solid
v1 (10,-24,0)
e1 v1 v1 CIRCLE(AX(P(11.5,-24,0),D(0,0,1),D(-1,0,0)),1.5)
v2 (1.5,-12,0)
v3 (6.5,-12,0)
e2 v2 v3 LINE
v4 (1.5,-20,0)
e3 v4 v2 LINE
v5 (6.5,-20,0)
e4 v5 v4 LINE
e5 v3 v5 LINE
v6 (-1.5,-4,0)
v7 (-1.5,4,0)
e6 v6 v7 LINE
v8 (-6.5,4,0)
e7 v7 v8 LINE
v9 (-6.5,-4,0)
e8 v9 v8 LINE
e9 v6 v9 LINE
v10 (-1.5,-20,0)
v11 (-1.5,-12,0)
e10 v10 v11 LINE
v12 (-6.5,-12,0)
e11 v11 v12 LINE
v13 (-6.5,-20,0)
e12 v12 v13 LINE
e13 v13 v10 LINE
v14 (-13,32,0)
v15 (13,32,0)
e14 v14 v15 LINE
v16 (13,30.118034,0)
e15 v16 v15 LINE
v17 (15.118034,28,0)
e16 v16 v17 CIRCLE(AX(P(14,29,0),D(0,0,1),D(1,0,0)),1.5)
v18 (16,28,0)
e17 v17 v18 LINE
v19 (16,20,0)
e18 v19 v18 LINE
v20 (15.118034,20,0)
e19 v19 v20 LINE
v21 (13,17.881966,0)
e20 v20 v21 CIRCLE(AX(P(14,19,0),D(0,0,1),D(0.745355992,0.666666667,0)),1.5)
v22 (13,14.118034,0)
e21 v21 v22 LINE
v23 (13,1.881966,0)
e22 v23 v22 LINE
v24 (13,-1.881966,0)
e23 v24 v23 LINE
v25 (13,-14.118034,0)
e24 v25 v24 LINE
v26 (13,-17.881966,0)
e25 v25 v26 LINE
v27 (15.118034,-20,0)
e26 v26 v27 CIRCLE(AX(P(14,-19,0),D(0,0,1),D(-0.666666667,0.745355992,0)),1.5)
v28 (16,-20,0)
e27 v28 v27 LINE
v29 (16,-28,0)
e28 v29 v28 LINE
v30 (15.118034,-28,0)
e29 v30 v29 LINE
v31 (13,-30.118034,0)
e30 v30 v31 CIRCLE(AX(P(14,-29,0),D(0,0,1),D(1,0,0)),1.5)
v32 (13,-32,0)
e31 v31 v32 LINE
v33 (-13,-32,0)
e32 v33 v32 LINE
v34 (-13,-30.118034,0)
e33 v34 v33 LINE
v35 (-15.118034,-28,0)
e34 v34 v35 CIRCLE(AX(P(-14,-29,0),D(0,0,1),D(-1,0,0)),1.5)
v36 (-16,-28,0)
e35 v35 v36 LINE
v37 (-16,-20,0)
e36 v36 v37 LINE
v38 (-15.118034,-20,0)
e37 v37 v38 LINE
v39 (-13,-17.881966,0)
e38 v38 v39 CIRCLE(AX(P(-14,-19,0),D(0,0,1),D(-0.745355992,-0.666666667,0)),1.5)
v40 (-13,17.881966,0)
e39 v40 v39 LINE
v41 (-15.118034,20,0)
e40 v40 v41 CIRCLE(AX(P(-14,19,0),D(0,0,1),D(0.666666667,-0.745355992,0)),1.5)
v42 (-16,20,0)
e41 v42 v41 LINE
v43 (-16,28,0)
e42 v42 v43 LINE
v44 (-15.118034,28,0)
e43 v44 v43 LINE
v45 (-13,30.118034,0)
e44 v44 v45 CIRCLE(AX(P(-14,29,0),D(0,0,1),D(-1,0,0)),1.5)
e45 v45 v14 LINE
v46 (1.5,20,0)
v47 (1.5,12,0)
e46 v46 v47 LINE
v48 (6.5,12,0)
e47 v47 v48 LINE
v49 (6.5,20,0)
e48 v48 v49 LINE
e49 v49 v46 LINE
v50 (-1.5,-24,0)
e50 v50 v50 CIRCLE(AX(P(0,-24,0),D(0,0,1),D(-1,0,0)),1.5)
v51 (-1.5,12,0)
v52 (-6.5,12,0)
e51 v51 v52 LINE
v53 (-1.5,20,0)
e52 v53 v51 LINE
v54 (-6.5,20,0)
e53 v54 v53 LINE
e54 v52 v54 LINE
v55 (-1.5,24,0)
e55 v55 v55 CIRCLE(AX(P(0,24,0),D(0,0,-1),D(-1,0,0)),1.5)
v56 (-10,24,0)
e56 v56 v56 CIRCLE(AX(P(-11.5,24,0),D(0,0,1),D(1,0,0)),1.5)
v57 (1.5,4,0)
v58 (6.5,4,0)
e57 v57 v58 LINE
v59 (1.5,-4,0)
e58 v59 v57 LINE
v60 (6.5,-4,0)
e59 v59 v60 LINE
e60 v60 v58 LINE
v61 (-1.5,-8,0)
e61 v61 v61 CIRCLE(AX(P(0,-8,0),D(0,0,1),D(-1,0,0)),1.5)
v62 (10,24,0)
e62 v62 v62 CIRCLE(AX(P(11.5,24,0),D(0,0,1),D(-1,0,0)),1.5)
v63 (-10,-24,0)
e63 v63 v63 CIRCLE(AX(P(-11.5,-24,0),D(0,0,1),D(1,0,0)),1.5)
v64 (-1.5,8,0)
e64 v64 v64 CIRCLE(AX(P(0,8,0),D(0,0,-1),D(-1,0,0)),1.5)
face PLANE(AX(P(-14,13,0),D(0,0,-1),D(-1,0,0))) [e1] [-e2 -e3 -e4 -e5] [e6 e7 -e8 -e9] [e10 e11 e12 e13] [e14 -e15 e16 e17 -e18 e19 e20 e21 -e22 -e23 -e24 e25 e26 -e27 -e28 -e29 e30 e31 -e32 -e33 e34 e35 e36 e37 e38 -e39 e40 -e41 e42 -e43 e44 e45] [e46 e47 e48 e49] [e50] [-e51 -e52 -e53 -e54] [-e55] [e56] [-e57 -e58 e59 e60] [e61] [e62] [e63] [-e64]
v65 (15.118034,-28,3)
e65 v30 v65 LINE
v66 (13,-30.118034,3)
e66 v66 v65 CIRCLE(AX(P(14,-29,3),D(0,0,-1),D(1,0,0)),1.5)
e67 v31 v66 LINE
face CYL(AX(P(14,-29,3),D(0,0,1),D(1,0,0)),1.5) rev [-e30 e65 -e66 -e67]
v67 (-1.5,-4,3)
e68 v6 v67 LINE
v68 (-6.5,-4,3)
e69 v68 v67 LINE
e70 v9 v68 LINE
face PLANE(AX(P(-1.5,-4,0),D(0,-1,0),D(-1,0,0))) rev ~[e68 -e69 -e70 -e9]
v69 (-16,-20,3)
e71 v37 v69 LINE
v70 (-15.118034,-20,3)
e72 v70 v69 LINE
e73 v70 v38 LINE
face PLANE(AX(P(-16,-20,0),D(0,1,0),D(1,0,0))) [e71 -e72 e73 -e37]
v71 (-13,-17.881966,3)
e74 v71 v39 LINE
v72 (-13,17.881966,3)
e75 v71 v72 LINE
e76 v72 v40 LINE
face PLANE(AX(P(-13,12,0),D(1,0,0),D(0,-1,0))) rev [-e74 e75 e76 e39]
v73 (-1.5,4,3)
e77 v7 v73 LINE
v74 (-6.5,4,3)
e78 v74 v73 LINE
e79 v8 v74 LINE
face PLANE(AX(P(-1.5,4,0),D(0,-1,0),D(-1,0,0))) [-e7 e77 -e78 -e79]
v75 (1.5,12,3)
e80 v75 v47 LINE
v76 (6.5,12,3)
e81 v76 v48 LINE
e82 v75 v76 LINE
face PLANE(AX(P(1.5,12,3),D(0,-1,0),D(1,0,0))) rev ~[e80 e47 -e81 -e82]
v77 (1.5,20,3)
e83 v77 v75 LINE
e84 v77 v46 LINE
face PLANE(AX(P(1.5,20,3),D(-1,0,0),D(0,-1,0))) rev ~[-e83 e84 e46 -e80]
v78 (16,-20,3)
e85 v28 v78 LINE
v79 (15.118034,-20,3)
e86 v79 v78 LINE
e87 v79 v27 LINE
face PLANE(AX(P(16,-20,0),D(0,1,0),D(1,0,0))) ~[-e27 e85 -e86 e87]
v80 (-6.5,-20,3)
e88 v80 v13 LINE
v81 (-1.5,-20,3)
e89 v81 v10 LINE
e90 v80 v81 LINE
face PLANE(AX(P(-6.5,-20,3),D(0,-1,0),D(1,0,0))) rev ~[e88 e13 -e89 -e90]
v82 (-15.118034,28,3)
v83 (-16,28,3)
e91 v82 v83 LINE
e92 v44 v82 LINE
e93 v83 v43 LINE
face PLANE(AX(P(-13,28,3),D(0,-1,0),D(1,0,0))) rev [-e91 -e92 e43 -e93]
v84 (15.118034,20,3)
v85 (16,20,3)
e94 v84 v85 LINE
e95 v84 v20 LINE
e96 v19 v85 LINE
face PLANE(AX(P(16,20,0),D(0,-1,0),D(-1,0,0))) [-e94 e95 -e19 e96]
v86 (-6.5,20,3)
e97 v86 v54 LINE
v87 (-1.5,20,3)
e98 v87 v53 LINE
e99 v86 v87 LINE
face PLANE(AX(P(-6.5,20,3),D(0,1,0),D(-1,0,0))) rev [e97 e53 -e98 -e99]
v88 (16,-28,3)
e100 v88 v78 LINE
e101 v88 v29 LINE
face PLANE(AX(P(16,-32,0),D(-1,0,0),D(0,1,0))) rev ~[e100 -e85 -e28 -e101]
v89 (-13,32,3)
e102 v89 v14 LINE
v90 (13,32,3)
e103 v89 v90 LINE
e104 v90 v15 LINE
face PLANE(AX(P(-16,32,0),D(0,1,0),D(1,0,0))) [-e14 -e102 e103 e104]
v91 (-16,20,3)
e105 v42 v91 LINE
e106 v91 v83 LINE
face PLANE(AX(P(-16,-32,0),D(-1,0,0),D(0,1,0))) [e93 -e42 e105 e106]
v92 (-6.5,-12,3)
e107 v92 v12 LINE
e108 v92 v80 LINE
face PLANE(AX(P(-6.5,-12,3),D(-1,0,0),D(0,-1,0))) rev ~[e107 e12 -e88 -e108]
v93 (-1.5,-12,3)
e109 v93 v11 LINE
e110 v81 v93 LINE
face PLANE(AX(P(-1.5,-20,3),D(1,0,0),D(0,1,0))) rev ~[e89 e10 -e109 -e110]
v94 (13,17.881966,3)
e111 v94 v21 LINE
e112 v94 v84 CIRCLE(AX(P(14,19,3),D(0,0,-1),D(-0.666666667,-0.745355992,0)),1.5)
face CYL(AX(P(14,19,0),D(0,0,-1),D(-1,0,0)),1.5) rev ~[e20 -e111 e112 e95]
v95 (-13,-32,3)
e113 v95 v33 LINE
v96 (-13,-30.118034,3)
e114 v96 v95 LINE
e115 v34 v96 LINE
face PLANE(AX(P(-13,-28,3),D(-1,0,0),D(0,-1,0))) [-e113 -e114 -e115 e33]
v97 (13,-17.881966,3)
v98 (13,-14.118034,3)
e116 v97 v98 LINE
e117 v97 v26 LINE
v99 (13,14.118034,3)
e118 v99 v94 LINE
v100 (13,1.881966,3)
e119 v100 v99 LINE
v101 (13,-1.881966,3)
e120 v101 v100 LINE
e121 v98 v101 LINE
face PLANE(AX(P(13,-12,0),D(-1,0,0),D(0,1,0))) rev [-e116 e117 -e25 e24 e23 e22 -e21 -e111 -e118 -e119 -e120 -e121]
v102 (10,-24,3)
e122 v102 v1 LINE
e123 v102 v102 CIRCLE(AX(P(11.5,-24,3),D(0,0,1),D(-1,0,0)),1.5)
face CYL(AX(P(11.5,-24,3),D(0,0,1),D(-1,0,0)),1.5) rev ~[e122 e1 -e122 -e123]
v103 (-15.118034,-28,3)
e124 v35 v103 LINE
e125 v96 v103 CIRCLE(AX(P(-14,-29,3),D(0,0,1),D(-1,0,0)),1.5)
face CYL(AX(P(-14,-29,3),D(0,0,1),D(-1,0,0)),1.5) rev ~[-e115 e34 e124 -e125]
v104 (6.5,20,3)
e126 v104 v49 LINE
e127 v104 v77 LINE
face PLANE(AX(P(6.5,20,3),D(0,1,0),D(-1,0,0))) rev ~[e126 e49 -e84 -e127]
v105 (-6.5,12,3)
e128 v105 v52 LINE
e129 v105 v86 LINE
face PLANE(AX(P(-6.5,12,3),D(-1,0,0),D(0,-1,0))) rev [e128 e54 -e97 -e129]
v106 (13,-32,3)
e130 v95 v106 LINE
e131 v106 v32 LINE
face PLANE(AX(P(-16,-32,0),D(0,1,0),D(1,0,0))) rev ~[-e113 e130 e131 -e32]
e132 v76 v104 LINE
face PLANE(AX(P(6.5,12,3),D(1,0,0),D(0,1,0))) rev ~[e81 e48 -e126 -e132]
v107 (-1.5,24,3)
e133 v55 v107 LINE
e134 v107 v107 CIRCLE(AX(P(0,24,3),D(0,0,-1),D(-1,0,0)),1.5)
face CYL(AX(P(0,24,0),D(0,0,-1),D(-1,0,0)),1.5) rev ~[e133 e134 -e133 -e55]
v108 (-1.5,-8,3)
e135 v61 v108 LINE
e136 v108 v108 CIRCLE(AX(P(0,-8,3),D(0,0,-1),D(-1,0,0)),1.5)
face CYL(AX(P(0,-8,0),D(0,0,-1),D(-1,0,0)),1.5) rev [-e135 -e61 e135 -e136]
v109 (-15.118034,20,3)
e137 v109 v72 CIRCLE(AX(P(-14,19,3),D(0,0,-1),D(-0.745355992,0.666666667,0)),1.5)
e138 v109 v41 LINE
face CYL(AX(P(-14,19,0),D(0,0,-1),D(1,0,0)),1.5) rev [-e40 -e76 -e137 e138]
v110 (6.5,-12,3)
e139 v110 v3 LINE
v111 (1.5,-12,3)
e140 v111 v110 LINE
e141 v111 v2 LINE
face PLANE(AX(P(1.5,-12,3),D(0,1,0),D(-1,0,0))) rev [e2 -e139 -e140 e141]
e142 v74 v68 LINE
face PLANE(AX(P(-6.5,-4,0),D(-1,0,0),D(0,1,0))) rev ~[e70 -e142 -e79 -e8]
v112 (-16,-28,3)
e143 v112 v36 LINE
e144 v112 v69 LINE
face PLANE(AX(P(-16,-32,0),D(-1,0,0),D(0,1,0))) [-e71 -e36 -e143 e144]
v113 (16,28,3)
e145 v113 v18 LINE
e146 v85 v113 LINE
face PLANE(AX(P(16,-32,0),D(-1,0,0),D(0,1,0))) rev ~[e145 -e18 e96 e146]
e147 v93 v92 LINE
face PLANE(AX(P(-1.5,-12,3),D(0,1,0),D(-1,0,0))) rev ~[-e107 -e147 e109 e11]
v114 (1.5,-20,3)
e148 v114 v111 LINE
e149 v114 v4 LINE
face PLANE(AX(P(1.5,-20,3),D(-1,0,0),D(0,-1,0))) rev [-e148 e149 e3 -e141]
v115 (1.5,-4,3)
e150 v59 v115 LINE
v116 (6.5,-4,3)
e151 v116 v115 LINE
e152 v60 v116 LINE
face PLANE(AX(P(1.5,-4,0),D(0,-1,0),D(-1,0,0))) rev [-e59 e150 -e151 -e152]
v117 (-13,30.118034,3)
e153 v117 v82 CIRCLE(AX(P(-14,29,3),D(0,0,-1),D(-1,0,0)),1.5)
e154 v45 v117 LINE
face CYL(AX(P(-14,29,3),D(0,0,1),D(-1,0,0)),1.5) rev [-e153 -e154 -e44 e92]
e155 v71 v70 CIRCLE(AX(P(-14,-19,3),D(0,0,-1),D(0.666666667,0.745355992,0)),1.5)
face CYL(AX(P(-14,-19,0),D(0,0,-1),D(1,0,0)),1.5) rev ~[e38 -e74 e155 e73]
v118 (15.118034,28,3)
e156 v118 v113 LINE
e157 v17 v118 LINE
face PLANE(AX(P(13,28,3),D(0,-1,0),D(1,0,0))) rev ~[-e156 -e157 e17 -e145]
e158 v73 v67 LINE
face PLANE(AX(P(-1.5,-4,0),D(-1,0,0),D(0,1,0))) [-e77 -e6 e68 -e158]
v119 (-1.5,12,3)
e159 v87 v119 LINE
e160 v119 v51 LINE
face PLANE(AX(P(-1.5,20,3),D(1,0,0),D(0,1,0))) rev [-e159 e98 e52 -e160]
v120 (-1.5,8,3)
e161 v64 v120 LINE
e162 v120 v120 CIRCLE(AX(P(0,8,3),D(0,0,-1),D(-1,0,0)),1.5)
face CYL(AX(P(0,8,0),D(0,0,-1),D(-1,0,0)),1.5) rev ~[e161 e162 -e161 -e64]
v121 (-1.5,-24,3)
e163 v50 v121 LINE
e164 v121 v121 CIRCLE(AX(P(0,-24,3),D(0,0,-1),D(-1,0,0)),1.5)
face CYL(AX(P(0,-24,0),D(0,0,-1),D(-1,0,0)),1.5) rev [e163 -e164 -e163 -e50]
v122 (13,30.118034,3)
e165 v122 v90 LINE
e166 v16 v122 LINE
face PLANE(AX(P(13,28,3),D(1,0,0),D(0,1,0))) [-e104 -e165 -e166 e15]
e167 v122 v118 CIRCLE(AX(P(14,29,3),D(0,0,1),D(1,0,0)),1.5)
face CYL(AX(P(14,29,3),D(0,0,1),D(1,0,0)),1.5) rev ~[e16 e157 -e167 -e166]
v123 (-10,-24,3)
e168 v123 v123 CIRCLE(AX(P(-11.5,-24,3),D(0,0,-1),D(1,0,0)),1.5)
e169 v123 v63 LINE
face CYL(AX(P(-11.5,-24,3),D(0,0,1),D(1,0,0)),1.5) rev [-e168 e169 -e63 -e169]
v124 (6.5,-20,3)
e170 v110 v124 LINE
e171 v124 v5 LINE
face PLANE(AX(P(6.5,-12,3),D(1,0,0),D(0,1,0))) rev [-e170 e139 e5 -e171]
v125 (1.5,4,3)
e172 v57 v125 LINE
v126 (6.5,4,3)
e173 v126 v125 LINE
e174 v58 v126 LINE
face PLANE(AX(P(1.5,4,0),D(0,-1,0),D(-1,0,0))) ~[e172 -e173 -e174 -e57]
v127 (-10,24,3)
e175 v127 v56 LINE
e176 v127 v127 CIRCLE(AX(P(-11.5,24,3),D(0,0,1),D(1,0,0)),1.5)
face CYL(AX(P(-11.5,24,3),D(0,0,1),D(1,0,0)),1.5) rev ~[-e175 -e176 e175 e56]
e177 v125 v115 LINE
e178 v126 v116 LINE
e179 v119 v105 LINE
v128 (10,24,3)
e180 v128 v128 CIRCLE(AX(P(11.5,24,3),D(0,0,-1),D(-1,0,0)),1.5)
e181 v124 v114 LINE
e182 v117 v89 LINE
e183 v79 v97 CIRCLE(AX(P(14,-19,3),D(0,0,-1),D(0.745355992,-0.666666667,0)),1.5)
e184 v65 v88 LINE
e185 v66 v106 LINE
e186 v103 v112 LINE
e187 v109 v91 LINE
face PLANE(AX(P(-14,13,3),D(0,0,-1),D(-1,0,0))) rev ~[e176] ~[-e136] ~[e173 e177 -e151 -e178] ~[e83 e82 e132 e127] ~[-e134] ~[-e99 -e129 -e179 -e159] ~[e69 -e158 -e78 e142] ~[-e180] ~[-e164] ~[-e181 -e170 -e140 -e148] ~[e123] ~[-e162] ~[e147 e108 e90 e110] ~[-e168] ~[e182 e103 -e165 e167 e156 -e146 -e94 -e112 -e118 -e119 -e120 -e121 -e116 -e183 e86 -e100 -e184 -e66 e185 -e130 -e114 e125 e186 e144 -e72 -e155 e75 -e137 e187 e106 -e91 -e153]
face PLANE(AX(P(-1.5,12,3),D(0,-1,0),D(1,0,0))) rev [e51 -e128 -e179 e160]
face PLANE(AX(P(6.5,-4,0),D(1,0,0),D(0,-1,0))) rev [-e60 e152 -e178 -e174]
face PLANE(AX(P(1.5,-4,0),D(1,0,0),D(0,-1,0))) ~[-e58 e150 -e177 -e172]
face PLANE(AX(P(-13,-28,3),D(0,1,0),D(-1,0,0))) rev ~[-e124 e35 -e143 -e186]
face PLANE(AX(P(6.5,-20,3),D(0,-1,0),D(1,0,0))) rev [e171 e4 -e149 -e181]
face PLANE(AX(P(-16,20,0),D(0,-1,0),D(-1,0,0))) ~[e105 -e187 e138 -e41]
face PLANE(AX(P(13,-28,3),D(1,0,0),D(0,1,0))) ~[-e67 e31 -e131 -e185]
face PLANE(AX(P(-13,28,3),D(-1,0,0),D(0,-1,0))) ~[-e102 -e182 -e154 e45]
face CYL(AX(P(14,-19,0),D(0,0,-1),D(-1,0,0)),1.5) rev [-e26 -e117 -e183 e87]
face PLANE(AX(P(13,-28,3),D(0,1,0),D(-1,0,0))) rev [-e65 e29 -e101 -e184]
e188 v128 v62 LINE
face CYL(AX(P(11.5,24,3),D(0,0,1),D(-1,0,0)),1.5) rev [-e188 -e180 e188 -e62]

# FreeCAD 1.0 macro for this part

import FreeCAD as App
import Part
import Sketcher
from FreeCAD import Vector


def add_polygon(sketch, points):
    """Adds a closed chain of lines whose ends are joined by coincident constraints."""
    first, n = sketch.GeometryCount, len(points)
    for a, b in zip(points, points[1:] + points[:1]):
        sketch.addGeometry(Part.LineSegment(App.Vector(*a, 0), App.Vector(*b, 0)), False)
    for i in range(n):
        sketch.addConstraint(Sketcher.Constraint("Coincident", first + i, 2, first + (i + 1) % n, 1))

doc = App.newDocument("Part")
body = doc.addObject("PartDesign::Body", "Body")

# Sketch on XY plane
sketch1 = body.newObject("Sketcher::SketchObject", "Sketch")
sketch1.AttachmentSupport = (doc.getObject("XY_Plane"), [""])
sketch1.MapMode = "FlatFace"
add_polygon(sketch1, [(-16, 32), (-16, -32), (16, -32), (16, 32)])  # lines 0-3
sketch1.addConstraint([
    Sketcher.Constraint("Vertical", 0),
    Sketcher.Constraint("Horizontal", 1),
    Sketcher.Constraint("Vertical", 2),
    Sketcher.Constraint("Horizontal", 3),
    Sketcher.Constraint("Symmetric", 0, 2, 2, 2, -1, 1),
    Sketcher.Constraint("DistanceX", 1, 1, 1, 2, 32.0),
    Sketcher.Constraint("DistanceY", 0, 2, 0, 1, 64.0),
])
pad1 = body.newObject("PartDesign::Pad", "Pad")
pad1.Profile = sketch1
pad1.Length = 3

# Sketch on XY plane
sketch2 = body.newObject("Sketcher::SketchObject", "Sketch001")
sketch2.AttachmentSupport = (doc.getObject("XY_Plane"), [""])
sketch2.MapMode = "FlatFace"
sketch2.AttachmentOffset = App.Placement(Vector(0, 0, 3), App.Rotation())
add_polygon(sketch2, [(6, 12), (6, 20), (2, 20), (2, 12)])  # lines 0-3
sketch2.addConstraint([
    Sketcher.Constraint("Vertical", 0),
    Sketcher.Constraint("Horizontal", 1),
    Sketcher.Constraint("Vertical", 2),
    Sketcher.Constraint("Horizontal", 3),
    Sketcher.Constraint("DistanceX", 1, 2, 1, 1, 5.0),
    Sketcher.Constraint("DistanceY", 0, 1, 0, 2, 8.0),
    Sketcher.Constraint("DistanceY", -1, 1, 0, 2, 20.0),
    Sketcher.Constraint("DistanceX", -1, 1, 0, 2, 6.5),
])
pocket1 = body.newObject("PartDesign::Pocket", "Pocket")
pocket1.Profile = sketch2
pocket1.Type = "ThroughAll"
doc.recompute()

mirrored = body.newObject("PartDesign::Mirrored", "Mirrored")
mirrored.Originals = [pocket1]
mirrored.MirrorPlane = (doc.getObject("YZ_Plane"), [""])
body.Tip = mirrored
doc.recompute()

mirrored2 = body.newObject("PartDesign::Mirrored", "Mirrored001")
mirrored2.Originals = [pocket1]
mirrored2.MirrorPlane = (doc.getObject("XZ_Plane"), [""])
body.Tip = mirrored2

# Sketch on XY plane
sketch3 = body.newObject("Sketcher::SketchObject", "Sketch002")
sketch3.AttachmentSupport = (doc.getObject("XY_Plane"), [""])
sketch3.MapMode = "FlatFace"
sketch3.AttachmentOffset = App.Placement(Vector(0, 0, 3), App.Rotation())
add_polygon(sketch3, [(-6, -12), (-6, -20), (-2, -20), (-2, -12)])  # lines 0-3
sketch3.addConstraint([
    Sketcher.Constraint("Vertical", 0),
    Sketcher.Constraint("Horizontal", 1),
    Sketcher.Constraint("Vertical", 2),
    Sketcher.Constraint("Horizontal", 3),
    Sketcher.Constraint("DistanceX", 1, 1, 1, 2, 5.0),
    Sketcher.Constraint("DistanceY", 0, 2, 0, 1, 8.0),
    Sketcher.Constraint("DistanceY", 0, 2, -1, 1, 20.0),
    Sketcher.Constraint("DistanceX", 0, 2, -1, 1, 6.5),
])
pocket2 = body.newObject("PartDesign::Pocket", "Pocket001")
pocket2.Profile = sketch3
pocket2.Type = "ThroughAll"

# Sketch on XY plane
sketch4 = body.newObject("Sketcher::SketchObject", "Sketch003")
sketch4.AttachmentSupport = (doc.getObject("XY_Plane"), [""])
sketch4.MapMode = "FlatFace"
sketch4.AttachmentOffset = App.Placement(Vector(0, 0, 3), App.Rotation())
add_polygon(sketch4, [(13, 4), (13, -4), (16, -4), (16, 4)])  # lines 0-3
sketch4.addConstraint([
    Sketcher.Constraint("Vertical", 0),
    Sketcher.Constraint("Horizontal", 1),
    Sketcher.Constraint("Vertical", 2),
    Sketcher.Constraint("Horizontal", 3),
    Sketcher.Constraint("DistanceX", 1, 1, 1, 2, 3.0),
    Sketcher.Constraint("DistanceY", 0, 2, 0, 1, 8.0),
    Sketcher.Constraint("DistanceX", -1, 1, 0, 2, 13.0),
    Sketcher.Constraint("DistanceY", 0, 2, -1, 1, 4.0),
])
pocket3 = body.newObject("PartDesign::Pocket", "Pocket002")
pocket3.Profile = sketch4
pocket3.Length = 10
doc.recompute()

mirrored3 = body.newObject("PartDesign::Mirrored", "Mirrored002")
mirrored3.Originals = [pocket3]
mirrored3.MirrorPlane = (doc.getObject("YZ_Plane"), [""])
body.Tip = mirrored3

# Sketch on XY plane
sketch5 = body.newObject("Sketcher::SketchObject", "Sketch004")
sketch5.AttachmentSupport = (doc.getObject("XY_Plane"), [""])
sketch5.MapMode = "FlatFace"
sketch5.AttachmentOffset = App.Placement(Vector(0, 0, 3), App.Rotation())
add_polygon(sketch5, [(13, 32), (13, 28), (16, 28), (16, 32)])  # lines 0-3
sketch5.addConstraint([
    Sketcher.Constraint("Vertical", 0),
    Sketcher.Constraint("Horizontal", 1),
    Sketcher.Constraint("Vertical", 2),
    Sketcher.Constraint("Horizontal", 3),
    Sketcher.Constraint("DistanceX", 1, 1, 1, 2, 3.0),
    Sketcher.Constraint("DistanceY", 0, 2, 0, 1, 4.0),
    Sketcher.Constraint("DistanceX", -1, 1, 0, 2, 13.0),
    Sketcher.Constraint("DistanceY", -1, 1, 0, 2, 28.0),
])
pocket4 = body.newObject("PartDesign::Pocket", "Pocket003")
pocket4.Profile = sketch5
pocket4.Type = "ThroughAll"
doc.recompute()

mirrored4 = body.newObject("PartDesign::Mirrored", "Mirrored003")
mirrored4.Originals = [pocket4]
mirrored4.MirrorPlane = (doc.getObject("XZ_Plane"), [""])
body.Tip = mirrored4
doc.recompute()

mirrored5 = body.newObject("PartDesign::Mirrored", "Mirrored004")
mirrored5.Originals = [pocket4]
mirrored5.MirrorPlane = (doc.getObject("YZ_Plane"), [""])
body.Tip = mirrored5

# Sketch on XY plane
sketch6 = body.newObject("Sketcher::SketchObject", "Sketch005")
sketch6.AttachmentSupport = (doc.getObject("XY_Plane"), [""])
sketch6.MapMode = "FlatFace"
sketch6.AttachmentOffset = App.Placement(Vector(0, 0, 3), App.Rotation())
add_polygon(sketch6, [(-13, -32), (-13, -28), (-16, -28), (-16, -32)])  # lines 0-3
sketch6.addConstraint([
    Sketcher.Constraint("Vertical", 0),
    Sketcher.Constraint("Horizontal", 1),
    Sketcher.Constraint("Vertical", 2),
    Sketcher.Constraint("Horizontal", 3),
    Sketcher.Constraint("DistanceX", 1, 2, 1, 1, 3.0),
    Sketcher.Constraint("DistanceY", 0, 1, 0, 2, 4.0),
    Sketcher.Constraint("DistanceX", 0, 2, -1, 1, 13.0),
    Sketcher.Constraint("DistanceY", 0, 2, -1, 1, 28.0),
])
pocket5 = body.newObject("PartDesign::Pocket", "Pocket004")
pocket5.Profile = sketch6
pocket5.Type = "ThroughAll"

# Sketch on XY plane
sketch7 = body.newObject("Sketcher::SketchObject", "Sketch006")
sketch7.AttachmentSupport = (doc.getObject("XY_Plane"), [""])
sketch7.MapMode = "FlatFace"
sketch7.AttachmentOffset = App.Placement(Vector(0, 0, 3), App.Rotation())
sketch7.addGeometry(Part.Circle(Vector(14, 29, 0), Vector(0, 0, 1), 1.5), False)
sketch7.addConstraint([
    Sketcher.Constraint("Diameter", 0, 3.0),
    Sketcher.Constraint("DistanceX", -1, 1, 0, 3, 14.0),
    Sketcher.Constraint("DistanceY", -1, 1, 0, 3, 29.0),
])
pocket6 = body.newObject("PartDesign::Pocket", "Pocket005")
pocket6.Profile = sketch7
pocket6.Type = "ThroughAll"
doc.recompute()

mirrored6 = body.newObject("PartDesign::Mirrored", "Mirrored005")
mirrored6.Originals = [pocket6]
mirrored6.MirrorPlane = (doc.getObject("YZ_Plane"), [""])
body.Tip = mirrored6
doc.recompute()

mirrored7 = body.newObject("PartDesign::Mirrored", "Mirrored006")
mirrored7.Originals = [pocket6]
mirrored7.MirrorPlane = (doc.getObject("XZ_Plane"), [""])
body.Tip = mirrored7

# Sketch on XY plane
sketch8 = body.newObject("Sketcher::SketchObject", "Sketch007")
sketch8.AttachmentSupport = (doc.getObject("XY_Plane"), [""])
sketch8.MapMode = "FlatFace"
sketch8.AttachmentOffset = App.Placement(Vector(0, 0, 3), App.Rotation())
sketch8.addGeometry(Part.Circle(Vector(-14, -29, 0), Vector(0, 0, 1), 1.5), False)
sketch8.addConstraint([
    Sketcher.Constraint("Diameter", 0, 3.0),
    Sketcher.Constraint("DistanceX", 0, 3, -1, 1, 14.0),
    Sketcher.Constraint("DistanceY", 0, 3, -1, 1, 29.0),
])
pocket7 = body.newObject("PartDesign::Pocket", "Pocket006")
pocket7.Profile = sketch8
pocket7.Type = "ThroughAll"

# Sketch on XY plane
sketch9 = body.newObject("Sketcher::SketchObject", "Sketch008")
sketch9.AttachmentSupport = (doc.getObject("XY_Plane"), [""])
sketch9.MapMode = "FlatFace"
sketch9.AttachmentOffset = App.Placement(Vector(0, 0, 3), App.Rotation())
sketch9.addGeometry(Part.Circle(Vector(-14, 3, 0), Vector(0, 0, 1), 1.5), False)
sketch9.addConstraint([
    Sketcher.Constraint("Diameter", 0, 3.0),
    Sketcher.Constraint("DistanceX", 0, 3, -1, 1, 14.0),
    Sketcher.Constraint("DistanceY", -1, 1, 0, 3, 3.0),
])
pocket8 = body.newObject("PartDesign::Pocket", "Pocket007")
pocket8.Profile = sketch9
pocket8.Type = "ThroughAll"
doc.recompute()

mirrored8 = body.newObject("PartDesign::Mirrored", "Mirrored007")
mirrored8.Originals = [pocket8]
mirrored8.MirrorPlane = (doc.getObject("XZ_Plane"), [""])
body.Tip = mirrored8
doc.recompute()

mirrored9 = body.newObject("PartDesign::Mirrored", "Mirrored008")
mirrored9.Originals = [pocket8]
mirrored9.MirrorPlane = (doc.getObject("YZ_Plane"), [""])
body.Tip = mirrored9

# Sketch on XY plane
sketch10 = body.newObject("Sketcher::SketchObject", "Sketch009")
sketch10.AttachmentSupport = (doc.getObject("XY_Plane"), [""])
sketch10.MapMode = "FlatFace"
sketch10.AttachmentOffset = App.Placement(Vector(0, 0, 3), App.Rotation())
sketch10.addGeometry(Part.Circle(Vector(14, -3, 0), Vector(0, 0, 1), 1.5), False)
sketch10.addConstraint([
    Sketcher.Constraint("Diameter", 0, 3.0),
    Sketcher.Constraint("DistanceX", -1, 1, 0, 3, 14.0),
    Sketcher.Constraint("DistanceY", 0, 3, -1, 1, 3.0),
])
pocket9 = body.newObject("PartDesign::Pocket", "Pocket008")
pocket9.Profile = sketch10
pocket9.Type = "ThroughAll"

# Sketch on XY plane
sketch11 = body.newObject("Sketcher::SketchObject", "Sketch010")
sketch11.AttachmentSupport = (doc.getObject("XY_Plane"), [""])
sketch11.MapMode = "FlatFace"
sketch11.AttachmentOffset = App.Placement(Vector(0, 0, 3), App.Rotation())
sketch11.addGeometry([
    Part.Circle(Vector(-11.5, 8, 0), Vector(0, 0, 1), 1.5),
    Part.Circle(Vector(-11.5, 24, 0), Vector(0, 0, 1), 1.5),
], False)
sketch11.addConstraint([
    Sketcher.Constraint("Equal", 0, 1),
    Sketcher.Constraint("Vertical", 0, 3, 1, 3),
    Sketcher.Constraint("Diameter", 0, 3.0),
    Sketcher.Constraint("DistanceY", -1, 1, 0, 3, 8.0),
    Sketcher.Constraint("DistanceY", -1, 1, 1, 3, 24.0),
    Sketcher.Constraint("DistanceX", 0, 3, -1, 1, 11.5),
])
pocket10 = body.newObject("PartDesign::Pocket", "Pocket009")
pocket10.Profile = sketch11
pocket10.Type = "ThroughAll"
doc.recompute()

mirrored10 = body.newObject("PartDesign::Mirrored", "Mirrored009")
mirrored10.Originals = [pocket10]
mirrored10.MirrorPlane = (doc.getObject("YZ_Plane"), [""])
body.Tip = mirrored10
doc.recompute()

mirrored11 = body.newObject("PartDesign::Mirrored", "Mirrored010")
mirrored11.Originals = [pocket10]
mirrored11.MirrorPlane = (doc.getObject("XZ_Plane"), [""])
body.Tip = mirrored11

# Sketch on XY plane
sketch12 = body.newObject("Sketcher::SketchObject", "Sketch011")
sketch12.AttachmentSupport = (doc.getObject("XY_Plane"), [""])
sketch12.MapMode = "FlatFace"
sketch12.AttachmentOffset = App.Placement(Vector(0, 0, 3), App.Rotation())
sketch12.addGeometry([
    Part.Circle(Vector(11.5, -8, 0), Vector(0, 0, 1), 1.5),
    Part.Circle(Vector(11.5, -24, 0), Vector(0, 0, 1), 1.5),
], False)
sketch12.addConstraint([
    Sketcher.Constraint("Equal", 0, 1),
    Sketcher.Constraint("Vertical", 0, 3, 1, 3),
    Sketcher.Constraint("Diameter", 0, 3.0),
    Sketcher.Constraint("DistanceY", 0, 3, -1, 1, 8.0),
    Sketcher.Constraint("DistanceY", 1, 3, -1, 1, 24.0),
    Sketcher.Constraint("DistanceX", -1, 1, 0, 3, 11.5),
])
pocket11 = body.newObject("PartDesign::Pocket", "Pocket010")
pocket11.Profile = sketch12
pocket11.Type = "ThroughAll"

# Sketch on XY plane
sketch13 = body.newObject("Sketcher::SketchObject", "Sketch012")
sketch13.AttachmentSupport = (doc.getObject("XY_Plane"), [""])
sketch13.MapMode = "FlatFace"
add_polygon(sketch13, [(16, 20), (16, 12), (13, 12), (13, 20)])  # lines 0-3
sketch13.addConstraint([
    Sketcher.Constraint("Vertical", 0),
    Sketcher.Constraint("Horizontal", 1),
    Sketcher.Constraint("Vertical", 2),
    Sketcher.Constraint("Horizontal", 3),
    Sketcher.Constraint("DistanceX", 1, 2, 1, 1, 3.0),
    Sketcher.Constraint("DistanceY", 0, 2, 0, 1, 8.0),
    Sketcher.Constraint("DistanceX", -1, 1, 0, 2, 16.0),
    Sketcher.Constraint("DistanceY", -1, 1, 0, 2, 12.0),
])
pocket12 = body.newObject("PartDesign::Pocket", "Pocket011")
pocket12.Profile = sketch13
pocket12.Type = "ThroughAll"
pocket12.Reversed = True
doc.recompute()

mirrored12 = body.newObject("PartDesign::Mirrored", "Mirrored011")
mirrored12.Originals = [pocket12]
mirrored12.MirrorPlane = (doc.getObject("YZ_Plane"), [""])
body.Tip = mirrored12
doc.recompute()

mirrored13 = body.newObject("PartDesign::Mirrored", "Mirrored012")
mirrored13.Originals = [pocket12]
mirrored13.MirrorPlane = (doc.getObject("XZ_Plane"), [""])
body.Tip = mirrored13

# Sketch on XY plane
sketch14 = body.newObject("Sketcher::SketchObject", "Sketch013")
sketch14.AttachmentSupport = (doc.getObject("XY_Plane"), [""])
sketch14.MapMode = "FlatFace"
add_polygon(sketch14, [(-16, -20), (-16, -12), (-13, -12), (-13, -20)])  # lines 0-3
sketch14.addConstraint([
    Sketcher.Constraint("Vertical", 0),
    Sketcher.Constraint("Horizontal", 1),
    Sketcher.Constraint("Vertical", 2),
    Sketcher.Constraint("Horizontal", 3),
    Sketcher.Constraint("DistanceX", 1, 1, 1, 2, 3.0),
    Sketcher.Constraint("DistanceY", 0, 1, 0, 2, 8.0),
    Sketcher.Constraint("DistanceX", 0, 2, -1, 1, 16.0),
    Sketcher.Constraint("DistanceY", 0, 2, -1, 1, 12.0),
])
pocket13 = body.newObject("PartDesign::Pocket", "Pocket012")
pocket13.Profile = sketch14
pocket13.Type = "ThroughAll"
pocket13.Reversed = True

# Sketch on XY plane
sketch15 = body.newObject("Sketcher::SketchObject", "Sketch014")
sketch15.AttachmentSupport = (doc.getObject("XY_Plane"), [""])
sketch15.MapMode = "FlatFace"
sketch15.addGeometry([
    Part.Circle(Vector(14, 19, 0), Vector(0, 0, 1), 1.5),
    Part.Circle(Vector(14, 13, 0), Vector(0, 0, 1), 1.5),
], False)
sketch15.addConstraint([
    Sketcher.Constraint("Equal", 0, 1),
    Sketcher.Constraint("Vertical", 0, 3, 1, 3),
    Sketcher.Constraint("Diameter", 0, 3.0),
    Sketcher.Constraint("DistanceX", -1, 1, 0, 3, 14.0),
    Sketcher.Constraint("DistanceY", -1, 1, 0, 3, 19.0),
    Sketcher.Constraint("DistanceY", -1, 1, 1, 3, 13.0),
])
pocket14 = body.newObject("PartDesign::Pocket", "Pocket013")
pocket14.Profile = sketch15
pocket14.Type = "ThroughAll"
pocket14.Reversed = True
doc.recompute()

mirrored14 = body.newObject("PartDesign::Mirrored", "Mirrored013")
mirrored14.Originals = [pocket14]
mirrored14.MirrorPlane = (doc.getObject("YZ_Plane"), [""])
body.Tip = mirrored14
doc.recompute()

mirrored15 = body.newObject("PartDesign::Mirrored", "Mirrored014")
mirrored15.Originals = [pocket14]
mirrored15.MirrorPlane = (doc.getObject("XZ_Plane"), [""])
body.Tip = mirrored15

# Sketch on XY plane
sketch16 = body.newObject("Sketcher::SketchObject", "Sketch015")
sketch16.AttachmentSupport = (doc.getObject("XY_Plane"), [""])
sketch16.MapMode = "FlatFace"
sketch16.addGeometry([
    Part.Circle(Vector(-14, -19, 0), Vector(0, 0, 1), 1.5),
    Part.Circle(Vector(-14, -13, 0), Vector(0, 0, 1), 1.5),
], False)
sketch16.addConstraint([
    Sketcher.Constraint("Equal", 0, 1),
    Sketcher.Constraint("Vertical", 0, 3, 1, 3),
    Sketcher.Constraint("Diameter", 0, 3.0),
    Sketcher.Constraint("DistanceX", 0, 3, -1, 1, 14.0),
    Sketcher.Constraint("DistanceY", 0, 3, -1, 1, 19.0),
    Sketcher.Constraint("DistanceY", 1, 3, -1, 1, 13.0),
])
pocket15 = body.newObject("PartDesign::Pocket", "Pocket014")
pocket15.Profile = sketch16
pocket15.Type = "ThroughAll"
pocket15.Reversed = True

# Sketch on XY plane
sketch17 = body.newObject("Sketcher::SketchObject", "Sketch016")
sketch17.AttachmentSupport = (doc.getObject("XY_Plane"), [""])
sketch17.MapMode = "FlatFace"
add_polygon(sketch17, [(-2, 4), (-2, -4), (-6, -4), (-6, 4)])  # lines 0-3
sketch17.addConstraint([
    Sketcher.Constraint("Vertical", 0),
    Sketcher.Constraint("Horizontal", 1),
    Sketcher.Constraint("Vertical", 2),
    Sketcher.Constraint("Horizontal", 3),
    Sketcher.Constraint("DistanceX", 1, 2, 1, 1, 5.0),
    Sketcher.Constraint("DistanceY", 0, 2, 0, 1, 8.0),
    Sketcher.Constraint("DistanceY", 0, 2, -1, 1, 4.0),
    Sketcher.Constraint("DistanceX", 0, 2, -1, 1, 1.5),
])
pocket16 = body.newObject("PartDesign::Pocket", "Pocket015")
pocket16.Profile = sketch17
pocket16.Type = "ThroughAll"
pocket16.Reversed = True
doc.recompute()

mirrored16 = body.newObject("PartDesign::Mirrored", "Mirrored015")
mirrored16.Originals = [pocket16]
mirrored16.MirrorPlane = (doc.getObject("YZ_Plane"), [""])
body.Tip = mirrored16

# Sketch on XY plane
sketch18 = body.newObject("Sketcher::SketchObject", "Sketch017")
sketch18.AttachmentSupport = (doc.getObject("XY_Plane"), [""])
sketch18.MapMode = "FlatFace"
sketch18.addGeometry([
    Part.Circle(Vector(0, 8, 0), Vector(0, 0, 1), 1.5),
    Part.Circle(Vector(0, 24, 0), Vector(0, 0, 1), 1.5),
], False)
sketch18.addConstraint([
    Sketcher.Constraint("Equal", 0, 1),
    Sketcher.Constraint("PointOnObject", 0, 3, -2),
    Sketcher.Constraint("PointOnObject", 1, 3, -2),
    Sketcher.Constraint("Diameter", 0, 3.0),
    Sketcher.Constraint("DistanceY", -1, 1, 0, 3, 8.0),
    Sketcher.Constraint("DistanceY", -1, 1, 1, 3, 24.0),
])
pocket17 = body.newObject("PartDesign::Pocket", "Pocket016")
pocket17.Profile = sketch18
pocket17.Type = "ThroughAll"
pocket17.Reversed = True
doc.recompute()

mirrored17 = body.newObject("PartDesign::Mirrored", "Mirrored016")
mirrored17.Originals = [pocket17]
mirrored17.MirrorPlane = (doc.getObject("XZ_Plane"), [""])
body.Tip = mirrored17

# Sketch on XY plane
sketch19 = body.newObject("Sketcher::SketchObject", "Sketch018")
sketch19.AttachmentSupport = (doc.getObject("XY_Plane"), [""])
sketch19.MapMode = "FlatFace"
sketch19.AttachmentOffset = App.Placement(Vector(0, 0, 3), App.Rotation())
sketch19.addGeometry([
    Part.Circle(Vector(11.5, 8, 0), Vector(0, 0, 1), 1.5),
    Part.Circle(Vector(-11.5, 8, 0), Vector(0, 0, 1), 1.5),
    Part.Circle(Vector(-11.5, -8, 0), Vector(0, 0, 1), 1.5),
    Part.Circle(Vector(11.5, -8, 0), Vector(0, 0, 1), 1.5),
], False)
sketch19.addConstraint([
    Sketcher.Constraint("Equal", 0, 1),
    Sketcher.Constraint("Equal", 1, 2),
    Sketcher.Constraint("Equal", 2, 3),
    Sketcher.Constraint("Symmetric", 0, 3, 2, 3, -1, 1),
    Sketcher.Constraint("Symmetric", 1, 3, 3, 3, -1, 1),
    Sketcher.Constraint("Symmetric", 0, 3, 1, 3, -2),
    Sketcher.Constraint("Diameter", 0, 3.0),
    Sketcher.Constraint("DistanceY", -1, 1, 0, 3, 8.0),
    Sketcher.Constraint("DistanceX", 1, 3, 0, 3, 23.0),
])
pad2 = body.newObject("PartDesign::Pad", "Pad001")
pad2.Profile = sketch19
pad2.Length = 3
pad2.Reversed = True

# Sketch on XY plane
sketch20 = body.newObject("Sketcher::SketchObject", "Sketch019")
sketch20.AttachmentSupport = (doc.getObject("XY_Plane"), [""])
sketch20.MapMode = "FlatFace"
sketch20.addGeometry([
    Part.Circle(Vector(-14, 13, 0), Vector(0, 0, 1), 1.5),  # 0
    Part.Circle(Vector(14, 13, 0), Vector(0, 0, 1), 1.5),  # 1
    Part.Circle(Vector(14, 3, 0), Vector(0, 0, 1), 1.5),  # 2
    Part.Circle(Vector(-14, 3, 0), Vector(0, 0, 1), 1.5),  # 3
    Part.Circle(Vector(-14, -3, 0), Vector(0, 0, 1), 1.5),  # 4
    Part.Circle(Vector(14, -3, 0), Vector(0, 0, 1), 1.5),  # 5
    Part.Circle(Vector(14, -13, 0), Vector(0, 0, 1), 1.5),  # 6
    Part.Circle(Vector(-14, -13, 0), Vector(0, 0, 1), 1.5),  # 7
], False)
sketch20.addConstraint([
    Sketcher.Constraint("Equal", 0, 1),
    Sketcher.Constraint("Equal", 1, 2),
    Sketcher.Constraint("Equal", 2, 3),
    Sketcher.Constraint("Equal", 3, 4),
    Sketcher.Constraint("Equal", 4, 5),
    Sketcher.Constraint("Equal", 5, 6),
    Sketcher.Constraint("Equal", 6, 7),
    Sketcher.Constraint("Symmetric", 2, 3, 4, 3, -1, 1),
    Sketcher.Constraint("Symmetric", 3, 3, 5, 3, -1, 1),
    Sketcher.Constraint("Symmetric", 0, 3, 6, 3, -1, 1),
    Sketcher.Constraint("Symmetric", 1, 3, 7, 3, -1, 1),
    Sketcher.Constraint("Symmetric", 0, 3, 1, 3, -2),
    Sketcher.Constraint("Symmetric", 2, 3, 3, 3, -2),
    Sketcher.Constraint("Vertical", 1, 3, 2, 3),
    Sketcher.Constraint("Diameter", 0, 3.0),
    Sketcher.Constraint("DistanceX", 0, 3, -1, 1, 14.0),
    Sketcher.Constraint("DistanceY", -1, 1, 0, 3, 13.0),
    Sketcher.Constraint("DistanceY", -1, 1, 2, 3, 3.0),
])
pad3 = body.newObject("PartDesign::Pad", "Pad002")
pad3.Profile = sketch20
pad3.Length = 3

# Sketch on XY plane
sketch21 = body.newObject("Sketcher::SketchObject", "Sketch020")
sketch21.AttachmentSupport = (doc.getObject("XY_Plane"), [""])
sketch21.MapMode = "FlatFace"
add_polygon(sketch21, [(-13, 15.3), (-13, -15.1), (-16.5, -15.1), (-16.5, 15.3)])  # lines 0-3
add_polygon(sketch21, [(16.8, 15.3), (16.8, -15.1), (13, -15.1), (13, 15.3)])  # lines 4-7
sketch21.addConstraint([
    Sketcher.Constraint("Vertical", 0),
    Sketcher.Constraint("Horizontal", 1),
    Sketcher.Constraint("Vertical", 2),
    Sketcher.Constraint("Horizontal", 3),
    Sketcher.Constraint("Vertical", 4),
    Sketcher.Constraint("Horizontal", 5),
    Sketcher.Constraint("Vertical", 6),
    Sketcher.Constraint("Horizontal", 7),
    Sketcher.Constraint("Symmetric", 0, 2, 5, 2, -2),
    Sketcher.Constraint("Horizontal", 3, 2, 6, 2),
    Sketcher.Constraint("DistanceX", 0, 2, -1, 1, 13.0),
    Sketcher.Constraint("DistanceX", 1, 2, 1, 1, 3.45273),
    Sketcher.Constraint("DistanceX", 5, 2, 5, 1, 3.81528),
    Sketcher.Constraint("DistanceY", 0, 2, 0, 1, 30.432996),
    Sketcher.Constraint("DistanceY", 0, 2, -1, 1, 15.124449),
])
pocket18 = body.newObject("PartDesign::Pocket", "Pocket017")
pocket18.Profile = sketch21
pocket18.Type = "ThroughAll"
pocket18.Reversed = True

doc.recompute()
